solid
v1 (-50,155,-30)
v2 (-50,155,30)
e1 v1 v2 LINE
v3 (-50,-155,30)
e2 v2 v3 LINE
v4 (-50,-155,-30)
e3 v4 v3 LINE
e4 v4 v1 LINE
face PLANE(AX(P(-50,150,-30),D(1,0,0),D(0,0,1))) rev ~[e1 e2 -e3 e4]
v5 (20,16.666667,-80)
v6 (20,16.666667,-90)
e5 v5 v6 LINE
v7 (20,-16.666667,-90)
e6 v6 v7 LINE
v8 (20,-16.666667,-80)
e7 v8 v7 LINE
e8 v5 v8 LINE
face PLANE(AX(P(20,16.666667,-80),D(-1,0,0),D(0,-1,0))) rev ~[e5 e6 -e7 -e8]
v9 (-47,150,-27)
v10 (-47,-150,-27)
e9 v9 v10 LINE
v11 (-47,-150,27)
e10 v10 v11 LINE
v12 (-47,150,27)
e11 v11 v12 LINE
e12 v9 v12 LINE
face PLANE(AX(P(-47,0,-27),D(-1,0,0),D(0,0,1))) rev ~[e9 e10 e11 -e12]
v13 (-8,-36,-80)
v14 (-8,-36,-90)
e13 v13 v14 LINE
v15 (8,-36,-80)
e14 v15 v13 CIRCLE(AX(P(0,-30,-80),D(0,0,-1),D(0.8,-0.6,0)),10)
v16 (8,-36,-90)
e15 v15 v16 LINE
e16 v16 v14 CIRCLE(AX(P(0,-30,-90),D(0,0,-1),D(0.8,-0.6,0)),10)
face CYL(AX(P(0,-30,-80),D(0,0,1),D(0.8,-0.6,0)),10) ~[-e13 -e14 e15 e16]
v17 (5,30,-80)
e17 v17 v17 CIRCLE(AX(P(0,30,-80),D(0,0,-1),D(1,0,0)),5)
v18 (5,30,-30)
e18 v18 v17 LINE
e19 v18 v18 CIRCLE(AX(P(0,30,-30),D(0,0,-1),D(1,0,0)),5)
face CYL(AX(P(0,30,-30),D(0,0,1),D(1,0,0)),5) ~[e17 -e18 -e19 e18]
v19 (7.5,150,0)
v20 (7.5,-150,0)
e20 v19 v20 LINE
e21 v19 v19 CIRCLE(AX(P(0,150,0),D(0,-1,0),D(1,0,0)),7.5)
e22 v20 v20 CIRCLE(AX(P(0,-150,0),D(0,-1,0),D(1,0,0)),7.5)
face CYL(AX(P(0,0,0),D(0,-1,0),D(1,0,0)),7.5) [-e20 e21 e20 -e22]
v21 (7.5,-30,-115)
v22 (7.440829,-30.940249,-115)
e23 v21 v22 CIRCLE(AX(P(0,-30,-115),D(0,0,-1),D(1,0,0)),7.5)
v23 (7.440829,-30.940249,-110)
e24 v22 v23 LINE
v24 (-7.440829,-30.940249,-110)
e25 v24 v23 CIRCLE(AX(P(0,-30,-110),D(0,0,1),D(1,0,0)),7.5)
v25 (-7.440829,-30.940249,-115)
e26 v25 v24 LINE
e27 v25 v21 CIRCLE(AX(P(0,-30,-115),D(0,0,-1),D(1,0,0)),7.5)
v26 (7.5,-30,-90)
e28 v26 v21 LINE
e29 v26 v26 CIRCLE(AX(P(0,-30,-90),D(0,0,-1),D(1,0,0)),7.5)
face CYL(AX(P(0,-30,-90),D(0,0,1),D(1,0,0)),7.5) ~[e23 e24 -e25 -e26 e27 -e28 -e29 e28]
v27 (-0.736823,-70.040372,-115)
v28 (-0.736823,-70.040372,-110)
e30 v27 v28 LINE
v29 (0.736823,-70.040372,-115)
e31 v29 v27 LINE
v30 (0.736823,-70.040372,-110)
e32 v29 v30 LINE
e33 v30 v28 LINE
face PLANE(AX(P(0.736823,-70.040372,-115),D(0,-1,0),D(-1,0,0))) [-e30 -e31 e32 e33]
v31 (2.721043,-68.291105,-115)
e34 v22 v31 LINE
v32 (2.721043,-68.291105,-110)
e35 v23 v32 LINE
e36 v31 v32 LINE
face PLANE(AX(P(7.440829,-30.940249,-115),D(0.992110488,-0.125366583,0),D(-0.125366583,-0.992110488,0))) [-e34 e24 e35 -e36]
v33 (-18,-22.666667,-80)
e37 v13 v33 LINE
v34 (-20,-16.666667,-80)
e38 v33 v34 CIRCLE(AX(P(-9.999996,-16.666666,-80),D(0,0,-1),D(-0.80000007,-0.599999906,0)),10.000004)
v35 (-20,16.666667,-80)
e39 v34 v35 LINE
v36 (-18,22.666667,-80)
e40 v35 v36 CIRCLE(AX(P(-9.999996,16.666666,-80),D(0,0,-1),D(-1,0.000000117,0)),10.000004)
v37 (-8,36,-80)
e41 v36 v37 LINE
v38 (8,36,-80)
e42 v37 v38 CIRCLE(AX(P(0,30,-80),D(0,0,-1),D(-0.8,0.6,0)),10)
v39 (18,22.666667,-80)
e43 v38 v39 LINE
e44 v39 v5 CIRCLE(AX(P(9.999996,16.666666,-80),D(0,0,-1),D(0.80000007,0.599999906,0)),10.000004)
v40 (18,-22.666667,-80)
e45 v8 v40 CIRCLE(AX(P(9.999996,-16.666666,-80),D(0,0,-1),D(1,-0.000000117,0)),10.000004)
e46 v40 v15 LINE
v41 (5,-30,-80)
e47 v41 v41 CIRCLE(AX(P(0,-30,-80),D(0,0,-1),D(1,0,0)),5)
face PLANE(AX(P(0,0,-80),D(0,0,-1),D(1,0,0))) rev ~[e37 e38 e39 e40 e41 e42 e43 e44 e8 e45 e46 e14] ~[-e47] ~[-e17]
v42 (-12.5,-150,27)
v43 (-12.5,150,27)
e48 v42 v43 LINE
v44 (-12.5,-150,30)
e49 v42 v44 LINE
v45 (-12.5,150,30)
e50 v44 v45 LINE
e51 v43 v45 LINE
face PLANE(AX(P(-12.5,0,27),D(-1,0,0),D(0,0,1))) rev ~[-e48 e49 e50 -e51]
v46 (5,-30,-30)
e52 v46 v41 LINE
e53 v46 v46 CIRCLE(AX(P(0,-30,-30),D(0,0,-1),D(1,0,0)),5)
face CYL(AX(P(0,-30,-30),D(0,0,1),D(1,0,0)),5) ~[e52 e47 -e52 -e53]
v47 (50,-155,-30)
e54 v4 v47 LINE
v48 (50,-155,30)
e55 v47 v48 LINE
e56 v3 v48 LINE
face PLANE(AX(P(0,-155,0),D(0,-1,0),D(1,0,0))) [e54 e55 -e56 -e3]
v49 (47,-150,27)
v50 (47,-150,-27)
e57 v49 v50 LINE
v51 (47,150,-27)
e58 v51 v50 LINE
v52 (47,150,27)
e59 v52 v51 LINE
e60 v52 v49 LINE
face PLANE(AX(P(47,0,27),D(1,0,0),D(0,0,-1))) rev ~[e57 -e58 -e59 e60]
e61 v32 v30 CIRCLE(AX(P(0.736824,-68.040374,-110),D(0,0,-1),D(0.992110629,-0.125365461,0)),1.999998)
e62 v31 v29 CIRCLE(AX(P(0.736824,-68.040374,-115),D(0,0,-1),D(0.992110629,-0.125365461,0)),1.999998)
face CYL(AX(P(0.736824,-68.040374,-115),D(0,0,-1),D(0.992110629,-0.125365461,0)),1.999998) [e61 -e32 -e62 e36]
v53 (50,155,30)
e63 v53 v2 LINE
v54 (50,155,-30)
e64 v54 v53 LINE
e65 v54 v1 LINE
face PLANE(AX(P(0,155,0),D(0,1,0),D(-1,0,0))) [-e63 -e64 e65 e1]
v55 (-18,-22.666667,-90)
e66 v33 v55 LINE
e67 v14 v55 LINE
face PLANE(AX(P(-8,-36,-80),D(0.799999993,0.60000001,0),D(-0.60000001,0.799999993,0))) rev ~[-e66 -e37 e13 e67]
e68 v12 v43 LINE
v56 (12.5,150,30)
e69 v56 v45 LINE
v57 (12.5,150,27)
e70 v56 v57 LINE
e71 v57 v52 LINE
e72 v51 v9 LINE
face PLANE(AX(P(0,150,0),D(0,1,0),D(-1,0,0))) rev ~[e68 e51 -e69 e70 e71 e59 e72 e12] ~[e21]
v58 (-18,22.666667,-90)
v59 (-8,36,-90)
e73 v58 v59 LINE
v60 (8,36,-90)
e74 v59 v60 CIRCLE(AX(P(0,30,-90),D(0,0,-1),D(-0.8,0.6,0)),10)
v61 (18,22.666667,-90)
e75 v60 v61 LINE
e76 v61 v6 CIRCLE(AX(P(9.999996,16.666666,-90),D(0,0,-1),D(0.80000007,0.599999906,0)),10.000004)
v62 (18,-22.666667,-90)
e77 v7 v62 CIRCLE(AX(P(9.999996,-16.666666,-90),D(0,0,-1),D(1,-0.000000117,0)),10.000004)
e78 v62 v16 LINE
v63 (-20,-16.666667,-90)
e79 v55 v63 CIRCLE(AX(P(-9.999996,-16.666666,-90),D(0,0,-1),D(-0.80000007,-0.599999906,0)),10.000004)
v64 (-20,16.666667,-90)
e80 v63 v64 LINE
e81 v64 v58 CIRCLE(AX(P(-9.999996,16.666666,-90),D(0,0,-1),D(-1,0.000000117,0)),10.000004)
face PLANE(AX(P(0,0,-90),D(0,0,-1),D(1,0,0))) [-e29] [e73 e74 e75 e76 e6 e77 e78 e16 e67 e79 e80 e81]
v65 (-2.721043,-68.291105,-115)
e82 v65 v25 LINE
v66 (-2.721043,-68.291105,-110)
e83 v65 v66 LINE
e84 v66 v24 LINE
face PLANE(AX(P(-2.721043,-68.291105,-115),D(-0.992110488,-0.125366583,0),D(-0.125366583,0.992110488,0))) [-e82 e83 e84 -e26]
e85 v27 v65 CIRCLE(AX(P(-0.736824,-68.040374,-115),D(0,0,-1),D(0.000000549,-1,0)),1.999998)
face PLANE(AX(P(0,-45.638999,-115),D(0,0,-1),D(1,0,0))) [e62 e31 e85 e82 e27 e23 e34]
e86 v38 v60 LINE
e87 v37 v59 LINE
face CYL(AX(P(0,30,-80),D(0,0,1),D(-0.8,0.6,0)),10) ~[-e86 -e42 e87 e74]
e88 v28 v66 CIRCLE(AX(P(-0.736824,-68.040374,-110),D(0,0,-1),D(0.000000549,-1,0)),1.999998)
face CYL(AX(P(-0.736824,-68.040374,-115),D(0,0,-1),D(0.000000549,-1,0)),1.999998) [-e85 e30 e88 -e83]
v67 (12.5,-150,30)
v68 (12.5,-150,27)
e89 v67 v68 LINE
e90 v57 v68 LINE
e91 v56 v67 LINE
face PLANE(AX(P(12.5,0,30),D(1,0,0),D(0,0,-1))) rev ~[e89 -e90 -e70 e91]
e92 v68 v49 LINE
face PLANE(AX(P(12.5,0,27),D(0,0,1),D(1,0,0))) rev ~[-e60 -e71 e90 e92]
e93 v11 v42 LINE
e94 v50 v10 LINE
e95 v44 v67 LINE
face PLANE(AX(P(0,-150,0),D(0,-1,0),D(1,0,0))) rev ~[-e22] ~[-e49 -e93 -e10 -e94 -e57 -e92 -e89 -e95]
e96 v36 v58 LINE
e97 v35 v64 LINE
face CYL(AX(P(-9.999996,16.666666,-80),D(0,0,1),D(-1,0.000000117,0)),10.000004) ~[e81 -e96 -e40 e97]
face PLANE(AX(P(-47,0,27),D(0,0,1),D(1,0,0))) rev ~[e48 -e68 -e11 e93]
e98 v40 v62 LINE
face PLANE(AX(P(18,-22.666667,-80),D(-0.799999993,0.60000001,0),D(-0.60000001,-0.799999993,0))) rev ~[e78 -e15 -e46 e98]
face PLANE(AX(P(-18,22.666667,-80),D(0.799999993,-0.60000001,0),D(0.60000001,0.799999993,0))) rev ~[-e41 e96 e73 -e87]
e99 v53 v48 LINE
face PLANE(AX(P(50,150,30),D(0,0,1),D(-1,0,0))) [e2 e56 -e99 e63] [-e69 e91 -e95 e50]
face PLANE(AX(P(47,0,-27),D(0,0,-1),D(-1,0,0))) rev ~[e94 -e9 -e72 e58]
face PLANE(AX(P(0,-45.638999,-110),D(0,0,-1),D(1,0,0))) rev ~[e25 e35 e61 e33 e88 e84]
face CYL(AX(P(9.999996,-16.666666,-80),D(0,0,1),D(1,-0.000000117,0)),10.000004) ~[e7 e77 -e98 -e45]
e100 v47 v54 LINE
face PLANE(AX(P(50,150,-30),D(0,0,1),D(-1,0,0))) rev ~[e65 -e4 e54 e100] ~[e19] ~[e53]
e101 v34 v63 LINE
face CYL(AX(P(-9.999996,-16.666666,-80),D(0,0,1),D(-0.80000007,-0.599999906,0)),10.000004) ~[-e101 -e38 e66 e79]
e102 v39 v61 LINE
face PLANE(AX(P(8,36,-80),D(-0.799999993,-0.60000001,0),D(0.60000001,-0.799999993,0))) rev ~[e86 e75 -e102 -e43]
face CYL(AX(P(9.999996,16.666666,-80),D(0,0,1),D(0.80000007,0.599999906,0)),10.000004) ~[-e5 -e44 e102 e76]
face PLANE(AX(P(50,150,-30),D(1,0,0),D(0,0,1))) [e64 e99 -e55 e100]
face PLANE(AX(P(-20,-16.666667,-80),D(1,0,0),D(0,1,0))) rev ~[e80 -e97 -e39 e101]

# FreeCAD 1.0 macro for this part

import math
import FreeCAD as App
import Part
import Sketcher
Q = App.Units.Quantity


def add_polygon(sketch, points):
    """Adds a closed chain of lines whose ends are joined by coincident constraints."""
    first, n = sketch.GeometryCount, len(points)
    for a, b in zip(points, points[1:] + points[:1]):
        sketch.addGeometry(Part.LineSegment(App.Vector(*a, 0), App.Vector(*b, 0)), False)
    for i in range(n):
        sketch.addConstraint(Sketcher.Constraint("Coincident", first + i, 2, first + (i + 1) % n, 1))

doc = App.newDocument("Part")
body = doc.addObject("PartDesign::Body", "Body")
body.AllowCompound = True

# Sketch on XZ plane
sketch1 = doc.addObject("Sketcher::SketchObject", "Sketch")
body.addObject(sketch1)
sketch1.AttachmentSupport = (doc.XZ_Plane, [""])
sketch1.MapMode = "FlatFace"
add_polygon(sketch1, [(-12.5, 30), (-50, 30), (-50, -30), (50, -30), (50, 30), (12.5, 30), (12.5, 27), (47, 27), (47, -27), (-47, -27), (-47, 27), (-12.5, 27)])  # lines 0-11
sketch1.addGeometry(Part.Circle(App.Vector(0, 0, 0), App.Vector(0, 0, 1), 7.5), False)  # 12
sketch1.addConstraint(Sketcher.Constraint("Horizontal", 0))
sketch1.addConstraint(Sketcher.Constraint("Vertical", 1))
sketch1.addConstraint(Sketcher.Constraint("Horizontal", 2))
sketch1.addConstraint(Sketcher.Constraint("Vertical", 3))
sketch1.addConstraint(Sketcher.Constraint("Horizontal", 4))
sketch1.addConstraint(Sketcher.Constraint("Vertical", 5))
sketch1.addConstraint(Sketcher.Constraint("Horizontal", 6))
sketch1.addConstraint(Sketcher.Constraint("Vertical", 7))
sketch1.addConstraint(Sketcher.Constraint("Horizontal", 8))
sketch1.addConstraint(Sketcher.Constraint("Vertical", 9))
sketch1.addConstraint(Sketcher.Constraint("Horizontal", 10))
sketch1.addConstraint(Sketcher.Constraint("Vertical", 11))
sketch1.addConstraint(Sketcher.Constraint("Coincident", 12, 3, -1, 1))
sketch1.addConstraint(Sketcher.Constraint("Symmetric", 0, 2, 2, 2, -1, 1))
sketch1.addConstraint(Sketcher.Constraint("Symmetric", 6, 2, 8, 2, -1, 1))
sketch1.addConstraint(Sketcher.Constraint("Symmetric", 5, 2, 10, 2, -2))
sketch1.addConstraint(Sketcher.Constraint("Horizontal", 0, 2, 3, 2))
sketch1.addConstraint(Sketcher.Constraint("Diameter", 12, Q("15 mm")))
sketch1.addConstraint(Sketcher.Constraint("DistanceX", 2, 1, 2, 2, Q("100 mm")))
sketch1.addConstraint(Sketcher.Constraint("DistanceX", 8, 2, 8, 1, Q("94 mm")))
sketch1.addConstraint(Sketcher.Constraint("DistanceY", 1, 2, 1, 1, Q("60 mm")))
sketch1.addConstraint(Sketcher.Constraint("DistanceY", 5, 2, 5, 1, Q("3 mm")))
sketch1.addConstraint(Sketcher.Constraint("DistanceX", 0, 2, 0, 1, Q("37.5 mm")))
pad1 = doc.addObject("PartDesign::Pad", "Pad")
body.addObject(pad1)
pad1.Profile = sketch1
pad1.Length = 300
pad1.Midplane = True

# Sketch on XZ plane
sketch2 = doc.addObject("Sketcher::SketchObject", "Sketch001")
body.addObject(sketch2)
sketch2.AttachmentSupport = (doc.XZ_Plane, [""])
sketch2.MapMode = "FlatFace"
sketch2.AttachmentOffset = App.Placement(App.Vector(0, 0, 150), App.Rotation())
add_polygon(sketch2, [(-50, 30), (-50, -30), (50, -30), (50, 30)])  # lines 0-3
sketch2.addConstraint(Sketcher.Constraint("Vertical", 0))
sketch2.addConstraint(Sketcher.Constraint("Horizontal", 1))
sketch2.addConstraint(Sketcher.Constraint("Vertical", 2))
sketch2.addConstraint(Sketcher.Constraint("Horizontal", 3))
sketch2.addConstraint(Sketcher.Constraint("Symmetric", 0, 2, 2, 2, -1, 1))
sketch2.addConstraint(Sketcher.Constraint("DistanceX", 1, 1, 1, 2, Q("100 mm")))
sketch2.addConstraint(Sketcher.Constraint("DistanceY", 0, 2, 0, 1, Q("60 mm")))
pad2 = doc.addObject("PartDesign::Pad", "Pad001")
body.addObject(pad2)
pad2.Profile = sketch2
pad2.Length = 5

# Sketch on XZ plane
sketch3 = doc.addObject("Sketcher::SketchObject", "Sketch002")
body.addObject(sketch3)
sketch3.AttachmentSupport = (doc.XZ_Plane, [""])
sketch3.MapMode = "FlatFace"
sketch3.AttachmentOffset = App.Placement(App.Vector(0, 0, 150), App.Rotation())
add_polygon(sketch3, [(-50, 30), (-50, -30), (50, -30), (50, 30)])  # lines 0-3
sketch3.addConstraint(Sketcher.Constraint("Vertical", 0))
sketch3.addConstraint(Sketcher.Constraint("Horizontal", 1))
sketch3.addConstraint(Sketcher.Constraint("Vertical", 2))
sketch3.addConstraint(Sketcher.Constraint("Horizontal", 3))
sketch3.addConstraint(Sketcher.Constraint("Symmetric", 0, 2, 2, 2, -1, 1))
sketch3.addConstraint(Sketcher.Constraint("DistanceX", 1, 1, 1, 2, Q("100 mm")))
sketch3.addConstraint(Sketcher.Constraint("DistanceY", 0, 2, 0, 1, Q("60 mm")))
pad3 = doc.addObject("PartDesign::Pad", "Pad002")
body.addObject(pad3)
pad3.Profile = sketch3
pad3.Length = 5

# Sketch on XZ plane
sketch4 = doc.addObject("Sketcher::SketchObject", "Sketch003")
body.addObject(sketch4)
sketch4.AttachmentSupport = (doc.XZ_Plane, [""])
sketch4.MapMode = "FlatFace"
sketch4.AttachmentOffset = App.Placement(App.Vector(0, 0, -150), App.Rotation())
add_polygon(sketch4, [(50, 30), (50, -30), (-50, -30), (-50, 30)])  # lines 0-3
sketch4.addConstraint(Sketcher.Constraint("Vertical", 0))
sketch4.addConstraint(Sketcher.Constraint("Horizontal", 1))
sketch4.addConstraint(Sketcher.Constraint("Vertical", 2))
sketch4.addConstraint(Sketcher.Constraint("Horizontal", 3))
sketch4.addConstraint(Sketcher.Constraint("Symmetric", 0, 2, 2, 2, -1, 1))
sketch4.addConstraint(Sketcher.Constraint("DistanceX", 1, 2, 1, 1, Q("100 mm")))
sketch4.addConstraint(Sketcher.Constraint("DistanceY", 0, 2, 0, 1, Q("60 mm")))
pad4 = doc.addObject("PartDesign::Pad", "Pad003")
body.addObject(pad4)
pad4.Profile = sketch4
pad4.Length = 5
pad4.Reversed = True

# Sketch on XY plane
sketch5 = doc.addObject("Sketcher::SketchObject", "Sketch004")
body.addObject(sketch5)
sketch5.AttachmentSupport = (doc.XY_Plane, [""])
sketch5.MapMode = "FlatFace"
sketch5.AttachmentOffset = App.Placement(App.Vector(0, 0, -30), App.Rotation())
sketch5.addGeometry(Part.Circle(App.Vector(0, -30, 0), App.Vector(0, 0, 1), 5), False)
sketch5.addGeometry(Part.Circle(App.Vector(0, 30, 0), App.Vector(0, 0, 1), 5), False)
sketch5.addConstraint(Sketcher.Constraint("Equal", 0, 1))
sketch5.addConstraint(Sketcher.Constraint("Symmetric", 0, 3, 1, 3, -1, 1))
sketch5.addConstraint(Sketcher.Constraint("PointOnObject", 0, 3, -2))
sketch5.addConstraint(Sketcher.Constraint("Diameter", 0, Q("10 mm")))
sketch5.addConstraint(Sketcher.Constraint("DistanceY", 0, 3, -1, 1, Q("30 mm")))
pad5 = doc.addObject("PartDesign::Pad", "Pad004")
body.addObject(pad5)
pad5.Profile = sketch5
pad5.Length = 50
pad5.Reversed = True

# Sketch on XY plane
sketch6 = doc.addObject("Sketcher::SketchObject", "Sketch005")
body.addObject(sketch6)
sketch6.AttachmentSupport = (doc.XY_Plane, [""])
sketch6.MapMode = "FlatFace"
sketch6.AttachmentOffset = App.Placement(App.Vector(0, 0, -80), App.Rotation())
sketch6.addGeometry(Part.LineSegment(App.Vector(18, -22.666667, 0), App.Vector(8, -36, 0)), False)
sketch6.addGeometry(Part.ArcOfCircle(Part.Circle(App.Vector(0, -30, 0), App.Vector(0, 0, 1), 10), math.radians(-143.130102), math.radians(-36.869898)), False)
sketch6.addGeometry(Part.LineSegment(App.Vector(-8, -36, 0), App.Vector(-18, -22.666667, 0)), False)
sketch6.addGeometry(Part.ArcOfCircle(Part.Circle(App.Vector(-9.999996, -16.666666, 0), App.Vector(0, 0, 1), 10.000004), math.radians(-179.999993), math.radians(-143.130109)), False)
sketch6.addGeometry(Part.LineSegment(App.Vector(-20, -16.666667, 0), App.Vector(-20, 16.666667, 0)), False)
sketch6.addGeometry(Part.ArcOfCircle(Part.Circle(App.Vector(-9.999996, 16.666666, 0), App.Vector(0, 0, 1), 10.000004), math.radians(143.130109), math.radians(179.999993)), False)
sketch6.addGeometry(Part.LineSegment(App.Vector(-18, 22.666667, 0), App.Vector(-8, 36, 0)), False)
sketch6.addGeometry(Part.ArcOfCircle(Part.Circle(App.Vector(0, 30, 0), App.Vector(0, 0, 1), 10), math.radians(36.869898), math.radians(143.130102)), False)
sketch6.addGeometry(Part.LineSegment(App.Vector(8, 36, 0), App.Vector(18, 22.666667, 0)), False)
sketch6.addGeometry(Part.ArcOfCircle(Part.Circle(App.Vector(9.999996, 16.666666, 0), App.Vector(0, 0, 1), 10.000004), math.radians(0.000007), math.radians(36.869891)), False)
sketch6.addGeometry(Part.LineSegment(App.Vector(20, 16.666667, 0), App.Vector(20, -16.666667, 0)), False)
sketch6.addGeometry(Part.ArcOfCircle(Part.Circle(App.Vector(9.999996, -16.666666, 0), App.Vector(0, 0, 1), 10.000004), math.radians(-36.869891), math.radians(-0.000007)), False)
sketch6.addConstraint(Sketcher.Constraint("Tangent", 0, 2, 1, 2))
sketch6.addConstraint(Sketcher.Constraint("Tangent", 1, 1, 2, 1))
sketch6.addConstraint(Sketcher.Constraint("Tangent", 2, 2, 3, 2))
sketch6.addConstraint(Sketcher.Constraint("Tangent", 3, 1, 4, 1))
sketch6.addConstraint(Sketcher.Constraint("Tangent", 4, 2, 5, 2))
sketch6.addConstraint(Sketcher.Constraint("Tangent", 5, 1, 6, 1))
sketch6.addConstraint(Sketcher.Constraint("Tangent", 6, 2, 7, 2))
sketch6.addConstraint(Sketcher.Constraint("Tangent", 7, 1, 8, 1))
sketch6.addConstraint(Sketcher.Constraint("Tangent", 8, 2, 9, 2))
sketch6.addConstraint(Sketcher.Constraint("Tangent", 9, 1, 10, 1))
sketch6.addConstraint(Sketcher.Constraint("Tangent", 10, 2, 11, 2))
sketch6.addConstraint(Sketcher.Constraint("Tangent", 11, 1, 0, 1))
sketch6.addConstraint(Sketcher.Constraint("Vertical", 4))
sketch6.addConstraint(Sketcher.Constraint("Vertical", 10))
sketch6.addConstraint(Sketcher.Constraint("Equal", 3, 5))
sketch6.addConstraint(Sketcher.Constraint("Equal", 1, 7))
sketch6.addConstraint(Sketcher.Constraint("Equal", 5, 9))
sketch6.addConstraint(Sketcher.Constraint("Equal", 9, 11))
sketch6.addConstraint(Sketcher.Constraint("Symmetric", 1, 3, 7, 3, -1, 1))
sketch6.addConstraint(Sketcher.Constraint("Symmetric", 3, 3, 9, 3, -1, 1))
sketch6.addConstraint(Sketcher.Constraint("Symmetric", 0, 2, 1, 1, -2))
sketch6.addConstraint(Sketcher.Constraint("Parallel", 0, 6))
sketch6.addConstraint(Sketcher.Constraint("Radius", 1, Q("10 mm")))
sketch6.addConstraint(Sketcher.Constraint("DistanceY", 1, 3, -1, 1, Q("30 mm")))
sketch6.addConstraint(Sketcher.Constraint("DistanceX", -1, 1, 0, 2, Q("8 mm")))
sketch6.addConstraint(Sketcher.Constraint("DistanceX", 2, 2, -1, 1, Q("18 mm")))
sketch6.addConstraint(Sketcher.Constraint("DistanceX", 3, 1, -1, 1, Q("20 mm")))
pad6 = doc.addObject("PartDesign::Pad", "Pad005")
body.addObject(pad6)
pad6.Profile = sketch6
pad6.Length = 10
pad6.Reversed = True

# Sketch on XY plane
sketch7 = doc.addObject("Sketcher::SketchObject", "Sketch006")
body.addObject(sketch7)
sketch7.AttachmentSupport = (doc.XY_Plane, [""])
sketch7.MapMode = "FlatFace"
sketch7.AttachmentOffset = App.Placement(App.Vector(0, 0, -90), App.Rotation())
sketch7.addGeometry(Part.Circle(App.Vector(0, -30, 0), App.Vector(0, 0, 1), 7.5), False)
sketch7.addConstraint(Sketcher.Constraint("PointOnObject", 0, 3, -2))
sketch7.addConstraint(Sketcher.Constraint("Diameter", 0, Q("15 mm")))
sketch7.addConstraint(Sketcher.Constraint("DistanceY", 0, 3, -1, 1, Q("30 mm")))
pad7 = doc.addObject("PartDesign::Pad", "Pad006")
body.addObject(pad7)
pad7.Profile = sketch7
pad7.Length = 25
pad7.Reversed = True

# Sketch on XY plane
sketch8 = doc.addObject("Sketcher::SketchObject", "Sketch007")
body.addObject(sketch8)
sketch8.AttachmentSupport = (doc.XY_Plane, [""])
sketch8.MapMode = "FlatFace"
sketch8.AttachmentOffset = App.Placement(App.Vector(0, 0, -115), App.Rotation())
sketch8.addGeometry(Part.LineSegment(App.Vector(-2.721043, -68.291105, 0), App.Vector(-7.440829, -30.940249, 0)), False)
sketch8.addGeometry(Part.ArcOfCircle(Part.Circle(App.Vector(0, -30, 0), App.Vector(0, 0, 1), 7.5), math.radians(-7.201921), math.radians(187.201921)), False)
sketch8.addGeometry(Part.LineSegment(App.Vector(7.440829, -30.940249, 0), App.Vector(2.721043, -68.291105, 0)), False)
sketch8.addGeometry(Part.ArcOfCircle(Part.Circle(App.Vector(0.736824, -68.040374, 0), App.Vector(0, 0, 1), 1.999998), math.radians(-90.000031), math.radians(-7.201861)), False)
sketch8.addGeometry(Part.LineSegment(App.Vector(0.736823, -70.040372, 0), App.Vector(-0.736823, -70.040372, 0)), False)
sketch8.addGeometry(Part.ArcOfCircle(Part.Circle(App.Vector(-0.736824, -68.040374, 0), App.Vector(0, 0, 1), 1.999998), math.radians(-172.798139), math.radians(-89.999969)), False)
sketch8.addConstraint(Sketcher.Constraint("Tangent", 0, 2, 1, 2))
sketch8.addConstraint(Sketcher.Constraint("Tangent", 1, 1, 2, 1))
sketch8.addConstraint(Sketcher.Constraint("Tangent", 2, 2, 3, 2))
sketch8.addConstraint(Sketcher.Constraint("Tangent", 3, 1, 4, 1))
sketch8.addConstraint(Sketcher.Constraint("Tangent", 4, 2, 5, 2))
sketch8.addConstraint(Sketcher.Constraint("Tangent", 5, 1, 0, 1))
sketch8.addConstraint(Sketcher.Constraint("Horizontal", 4))
sketch8.addConstraint(Sketcher.Constraint("Equal", 3, 5))
sketch8.addConstraint(Sketcher.Constraint("Symmetric", 0, 2, 1, 1, -2))
sketch8.addConstraint(Sketcher.Constraint("Radius", 1, Q("7.5 mm")))
sketch8.addConstraint(Sketcher.Constraint("DistanceY", 1, 3, -1, 1, Q("30 mm")))
sketch8.addConstraint(Sketcher.Constraint("Radius", 3, Q("1.999998 mm")))
sketch8.addConstraint(Sketcher.Constraint("Distance", 0, Q("37.647879 mm")))
sketch8.addConstraint(Sketcher.Constraint("DistanceX", 4, 2, 4, 1, Q("1.473646 mm")))
pad8 = doc.addObject("PartDesign::Pad", "Pad007")
body.addObject(pad8)
pad8.Profile = sketch8
pad8.Length = 5

doc.recompute()
